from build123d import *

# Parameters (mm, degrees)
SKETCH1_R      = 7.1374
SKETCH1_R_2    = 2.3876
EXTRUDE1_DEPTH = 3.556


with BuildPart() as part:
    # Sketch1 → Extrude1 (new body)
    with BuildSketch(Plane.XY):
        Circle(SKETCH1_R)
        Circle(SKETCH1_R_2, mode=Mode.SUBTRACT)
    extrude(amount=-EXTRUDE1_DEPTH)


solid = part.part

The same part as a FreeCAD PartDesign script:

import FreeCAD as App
import Part
import Sketcher
from FreeCAD import Vector
Q = App.Units.Quantity

doc = App.newDocument("Part")
body = doc.addObject("PartDesign::Body", "Body")

sketch1 = body.newObject("Sketcher::SketchObject", "Sketch")
sketch1.AttachmentSupport = (doc.getObject("XY_Plane"), [""])
sketch1.MapMode = "FlatFace"
sketch1.addGeometry([
    Part.Circle(Vector(0, 0, 0), Vector(0, 0, 1), 7.1),
    Part.Circle(Vector(0, 0, 0), Vector(0, 0, 1), 2.4),
], False)
sketch1.addConstraint([
    Sketcher.Constraint("Coincident", 0, 3, -1, 1),
    Sketcher.Constraint("Coincident", 1, 3, -1, 1),
    Sketcher.Constraint("Diameter", 0, Q("0.562 in")),
    Sketcher.Constraint("Diameter", 1, Q("0.188 in")),
])
pad1 = body.newObject("PartDesign::Pad", "Pad")
pad1.Profile = sketch1
pad1.Length = Q("0.14 in")
pad1.Reversed = True

doc.recompute()
